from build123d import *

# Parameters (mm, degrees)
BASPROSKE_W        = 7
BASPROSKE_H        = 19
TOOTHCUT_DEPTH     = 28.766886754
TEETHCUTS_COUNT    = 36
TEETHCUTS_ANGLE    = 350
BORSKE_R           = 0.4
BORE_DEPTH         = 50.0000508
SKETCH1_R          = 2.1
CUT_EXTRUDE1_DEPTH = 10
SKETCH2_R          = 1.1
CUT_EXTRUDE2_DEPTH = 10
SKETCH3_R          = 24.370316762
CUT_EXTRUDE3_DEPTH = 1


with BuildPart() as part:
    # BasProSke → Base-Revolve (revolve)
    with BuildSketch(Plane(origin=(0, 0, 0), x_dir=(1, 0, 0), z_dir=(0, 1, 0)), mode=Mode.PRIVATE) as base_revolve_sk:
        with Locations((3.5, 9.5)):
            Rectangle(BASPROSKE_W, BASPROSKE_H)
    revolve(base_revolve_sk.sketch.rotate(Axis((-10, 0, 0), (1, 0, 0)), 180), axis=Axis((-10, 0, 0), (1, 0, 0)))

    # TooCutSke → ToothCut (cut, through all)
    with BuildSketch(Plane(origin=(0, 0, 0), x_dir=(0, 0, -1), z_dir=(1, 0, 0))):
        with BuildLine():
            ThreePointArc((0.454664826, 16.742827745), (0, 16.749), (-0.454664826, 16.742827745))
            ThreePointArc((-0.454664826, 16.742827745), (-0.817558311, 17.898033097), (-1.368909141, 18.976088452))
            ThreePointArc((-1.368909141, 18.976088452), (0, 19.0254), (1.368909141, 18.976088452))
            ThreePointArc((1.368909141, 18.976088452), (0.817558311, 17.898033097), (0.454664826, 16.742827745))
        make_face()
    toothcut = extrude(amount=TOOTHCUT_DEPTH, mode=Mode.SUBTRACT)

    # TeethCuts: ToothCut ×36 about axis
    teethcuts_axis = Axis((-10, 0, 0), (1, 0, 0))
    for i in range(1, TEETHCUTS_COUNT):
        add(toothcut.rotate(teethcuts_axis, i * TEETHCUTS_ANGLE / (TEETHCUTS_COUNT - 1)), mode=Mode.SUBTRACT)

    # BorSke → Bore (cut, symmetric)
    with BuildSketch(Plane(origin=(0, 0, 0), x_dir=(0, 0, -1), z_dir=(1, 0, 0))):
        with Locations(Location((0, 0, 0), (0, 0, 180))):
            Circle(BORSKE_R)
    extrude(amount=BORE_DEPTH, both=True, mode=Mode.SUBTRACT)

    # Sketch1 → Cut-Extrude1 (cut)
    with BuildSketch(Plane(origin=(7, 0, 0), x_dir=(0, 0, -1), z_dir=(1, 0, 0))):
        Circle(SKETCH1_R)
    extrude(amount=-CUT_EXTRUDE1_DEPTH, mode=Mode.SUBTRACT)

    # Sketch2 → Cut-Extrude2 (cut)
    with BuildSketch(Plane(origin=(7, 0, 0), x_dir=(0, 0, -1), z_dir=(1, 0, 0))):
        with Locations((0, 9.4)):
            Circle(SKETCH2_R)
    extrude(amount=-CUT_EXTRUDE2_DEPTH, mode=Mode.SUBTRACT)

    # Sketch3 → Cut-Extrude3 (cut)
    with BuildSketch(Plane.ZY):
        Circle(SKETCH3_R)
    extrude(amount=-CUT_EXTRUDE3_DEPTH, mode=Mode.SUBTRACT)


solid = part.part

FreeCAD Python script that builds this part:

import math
import FreeCAD as App
import Part
import Sketcher


def add_polygon(sketch, points):
    """Adds a closed chain of lines whose ends are joined by coincident constraints."""
    first, n = sketch.GeometryCount, len(points)
    for a, b in zip(points, points[1:] + points[:1]):
        sketch.addGeometry(Part.LineSegment(App.Vector(*a, 0), App.Vector(*b, 0)), False)
    for i in range(n):
        sketch.addConstraint(Sketcher.Constraint("Coincident", first + i, 2, first + (i + 1) % n, 1))

doc = App.newDocument("Part")
body = doc.addObject("PartDesign::Body", "Body")

sketch1 = body.newObject("Sketcher::SketchObject", "Sketch")
sketch1.AttachmentSupport = (doc.getObject("XZ_Plane"), [""])
sketch1.MapMode = "FlatFace"
add_polygon(sketch1, [(0, -19), (0, 0), (7, 0), (7, -19)])
sketch1.addConstraint(Sketcher.Constraint("Vertical", 0))
sketch1.addConstraint(Sketcher.Constraint("Horizontal", 1))
sketch1.addConstraint(Sketcher.Constraint("Vertical", 2))
sketch1.addConstraint(Sketcher.Constraint("Horizontal", 3))
sketch1.addConstraint(Sketcher.Constraint("Coincident", 0, 2, -1, 1))
sketch1.addConstraint(Sketcher.Constraint("DistanceX", 1, 1, 1, 2, 7.0))
sketch1.addConstraint(Sketcher.Constraint("DistanceY", 0, 1, 0, 2, 19.0))
revolution = body.newObject("PartDesign::Revolution", "Revolution")
revolution.Profile = sketch1
revolution.ReferenceAxis = (sketch1, ["H_Axis"])
revolution.Angle = 360

sketch2 = body.newObject("Sketcher::SketchObject", "Sketch001")
sketch2.AttachmentSupport = (doc.getObject("YZ_Plane"), [""])
sketch2.MapMode = "FlatFace"
sketch2.addGeometry(Part.ArcOfCircle(Part.Circle(App.Vector(0, 0, 0), App.Vector(0, 0, 1), 16.7), math.radians(-1.56), math.radians(1.56)), False)
sketch2.addGeometry(Part.ArcOfCircle(Part.Circle(App.Vector(15.2, -7.5, 0), App.Vector(0, 0, 1), 7.2), math.radians(58.09), math.radians(77.38)), False)
sketch2.addGeometry(Part.ArcOfCircle(Part.Circle(App.Vector(0, 0, 0), App.Vector(0, 0, 1), 19), math.radians(-4.13), math.radians(4.13)), False)
sketch2.addGeometry(Part.ArcOfCircle(Part.Circle(App.Vector(15.2, 7.5, 0), App.Vector(0, 0, 1), 7.2), math.radians(-77.38), math.radians(-58.09)), False)
sketch2.addConstraint(Sketcher.Constraint("Coincident", 0, 1, 1, 2))
sketch2.addConstraint(Sketcher.Constraint("Coincident", 1, 1, 2, 1))
sketch2.addConstraint(Sketcher.Constraint("Coincident", 2, 2, 3, 2))
sketch2.addConstraint(Sketcher.Constraint("Coincident", 3, 1, 0, 2))
sketch2.addConstraint(Sketcher.Constraint("Coincident", 0, 3, -1, 1))
sketch2.addConstraint(Sketcher.Constraint("Coincident", 2, 3, -1, 1))
sketch2.addConstraint(Sketcher.Constraint("Equal", 1, 3))
sketch2.addConstraint(Sketcher.Constraint("Symmetric", 1, 3, 3, 3, -1))
sketch2.addConstraint(Sketcher.Constraint("Radius", 1, 7.2))
sketch2.addConstraint(Sketcher.Constraint("Radius", 0, 16.749))
sketch2.addConstraint(Sketcher.Constraint("Radius", 2, 19.0254))
sketch2.addConstraint(Sketcher.Constraint("DistanceY", 1, 3, -1, 1, 7.480829))
sketch2.addConstraint(Sketcher.Constraint("DistanceX", -1, 1, 1, 1, 18.976088))
pocket1 = body.newObject("PartDesign::Pocket", "Pocket")
pocket1.Profile = sketch2
pocket1.Type = "ThroughAll"
pocket1.Reversed = True
doc.recompute()

polarpattern = body.newObject("PartDesign::PolarPattern", "PolarPattern")
polarpattern.Originals = [pocket1]
polarpattern.Axis = (doc.getObject("X_Axis"), [""])
polarpattern.Angle = 360
polarpattern.Occurrences = 36
body.Tip = polarpattern

sketch3 = body.newObject("Sketcher::SketchObject", "Sketch002")
sketch3.AttachmentSupport = (doc.getObject("YZ_Plane"), [""])
sketch3.MapMode = "FlatFace"
sketch3.addGeometry(Part.Circle(App.Vector(0, 0, 0), App.Vector(0, 0, 1), 0.4), False)
sketch3.addConstraint(Sketcher.Constraint("Coincident", 0, 3, -1, 1))
sketch3.addConstraint(Sketcher.Constraint("Diameter", 0, 0.8))
pocket2 = body.newObject("PartDesign::Pocket", "Pocket001")
pocket2.Profile = sketch3
pocket2.Length = 100.000102
pocket2.Midplane = True

sketch4 = body.newObject("Sketcher::SketchObject", "Sketch003")
sketch4.AttachmentSupport = (doc.getObject("YZ_Plane"), [""])
sketch4.MapMode = "FlatFace"
sketch4.AttachmentOffset = App.Placement(App.Vector(0, 0, 7), App.Rotation())
sketch4.addGeometry(Part.Circle(App.Vector(0, 0, 0), App.Vector(0, 0, 1), 2.1), False)
sketch4.addConstraint(Sketcher.Constraint("Coincident", 0, 3, -1, 1))
sketch4.addConstraint(Sketcher.Constraint("Diameter", 0, 4.2))
pocket3 = body.newObject("PartDesign::Pocket", "Pocket002")
pocket3.Profile = sketch4
pocket3.Length = 10

sketch5 = body.newObject("Sketcher::SketchObject", "Sketch004")
sketch5.AttachmentSupport = (doc.getObject("YZ_Plane"), [""])
sketch5.MapMode = "FlatFace"
sketch5.AttachmentOffset = App.Placement(App.Vector(0, 0, 7), App.Rotation())
sketch5.addGeometry(Part.Circle(App.Vector(9.4, 0, 0), App.Vector(0, 0, 1), 1.1), False)
sketch5.addConstraint(Sketcher.Constraint("PointOnObject", 0, 3, -1))
sketch5.addConstraint(Sketcher.Constraint("Diameter", 0, 2.2))
sketch5.addConstraint(Sketcher.Constraint("DistanceX", -1, 1, 0, 3, 9.4))
pocket4 = body.newObject("PartDesign::Pocket", "Pocket003")
pocket4.Profile = sketch5
pocket4.Length = 10

sketch6 = body.newObject("Sketcher::SketchObject", "Sketch005")
sketch6.AttachmentSupport = (doc.getObject("YZ_Plane"), [""])
sketch6.MapMode = "FlatFace"
sketch6.addGeometry(Part.Circle(App.Vector(0, 0, 0), App.Vector(0, 0, 1), 24), False)
sketch6.addConstraint(Sketcher.Constraint("Coincident", 0, 3, -1, 1))
sketch6.addConstraint(Sketcher.Constraint("Diameter", 0, 48.740634))
pocket5 = body.newObject("PartDesign::Pocket", "Pocket004")
pocket5.Profile = sketch6
pocket5.Length = 1
pocket5.Reversed = True

doc.recompute()
